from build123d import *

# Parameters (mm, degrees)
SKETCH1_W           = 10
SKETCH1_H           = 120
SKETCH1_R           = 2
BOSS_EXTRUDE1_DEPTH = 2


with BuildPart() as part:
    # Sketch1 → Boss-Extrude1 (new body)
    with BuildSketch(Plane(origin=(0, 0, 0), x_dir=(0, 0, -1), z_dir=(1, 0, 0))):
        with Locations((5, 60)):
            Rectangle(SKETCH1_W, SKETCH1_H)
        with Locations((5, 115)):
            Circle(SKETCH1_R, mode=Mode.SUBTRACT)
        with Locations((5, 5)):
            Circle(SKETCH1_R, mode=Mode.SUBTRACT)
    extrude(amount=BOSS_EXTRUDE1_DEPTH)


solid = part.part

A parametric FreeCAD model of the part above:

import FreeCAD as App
import Part
import Sketcher
Q = App.Units.Quantity

doc = App.newDocument("Part")
params = doc.addObject("Spreadsheet::Sheet", "Params")
for row, (alias, value) in enumerate([
    ("sketch1_diameter", "4 mm"),
    ("sketch1_width", "120 mm"),
    ("sketch1_height", "10 mm"),
    ("pad1_length", "2 mm"),
], start=1):
    params.set(f"A{row}", alias)
    params.set(f"B{row}", "=" + value)
    params.setAlias(f"B{row}", alias)

body = doc.addObject("PartDesign::Body", "Body")

# Sketch on YZ plane
sketch1 = body.newObject("Sketcher::SketchObject", "Sketch")
sketch1.AttachmentSupport = (doc.getObject("YZ_Plane"), [""])
sketch1.MapMode = "FlatFace"
sketch1.addGeometry([
    Part.LineSegment(App.Vector(120, 0, 0), App.Vector(0, 0, 0)),  # 0
    Part.LineSegment(App.Vector(0, 0, 0), App.Vector(0, -10, 0)),  # 1
    Part.LineSegment(App.Vector(0, -10, 0), App.Vector(120, -10, 0)),  # 2
    Part.LineSegment(App.Vector(120, -10, 0), App.Vector(120, 0, 0)),  # 3
    Part.Circle(App.Vector(5, -5, 0), App.Vector(0, 0, 1), 2),  # 4
    Part.Circle(App.Vector(115, -5, 0), App.Vector(0, 0, 1), 2),  # 5
], False)
sketch1.addConstraint([
    Sketcher.Constraint("Coincident", 0, 2, 1, 1),
    Sketcher.Constraint("Coincident", 1, 2, 2, 1),
    Sketcher.Constraint("Coincident", 2, 2, 3, 1),
    Sketcher.Constraint("Coincident", 3, 2, 0, 1),
    Sketcher.Constraint("Horizontal", 0),
    Sketcher.Constraint("Vertical", 1),
    Sketcher.Constraint("Horizontal", 2),
    Sketcher.Constraint("Vertical", 3),
    Sketcher.Constraint("Coincident", 0, 2, -1, 1),
    Sketcher.Constraint("Equal", 4, 5),
    Sketcher.Constraint("Horizontal", 4, 3, 5, 3),
    Sketcher.Constraint("Diameter", 4, Q("4 mm")),
    Sketcher.Constraint("DistanceX", 0, 2, 0, 1, Q("120 mm")),
    Sketcher.Constraint("DistanceY", 1, 2, 1, 1, Q("10 mm")),
    Sketcher.Constraint("DistanceX", -1, 1, 4, 3, Q("5 mm")),
    Sketcher.Constraint("DistanceY", 4, 3, -1, 1, Q("5 mm")),
    Sketcher.Constraint("DistanceX", -1, 1, 5, 3, Q("115 mm")),
])
sketch1.setExpression("Constraints[11]", "Params.sketch1_diameter")
sketch1.setExpression("Constraints[12]", "Params.sketch1_width")
sketch1.setExpression("Constraints[13]", "Params.sketch1_height")
pad1 = body.newObject("PartDesign::Pad", "Pad")
pad1.Profile = sketch1
pad1.setExpression("Length", "Params.pad1_length")

doc.recompute()
